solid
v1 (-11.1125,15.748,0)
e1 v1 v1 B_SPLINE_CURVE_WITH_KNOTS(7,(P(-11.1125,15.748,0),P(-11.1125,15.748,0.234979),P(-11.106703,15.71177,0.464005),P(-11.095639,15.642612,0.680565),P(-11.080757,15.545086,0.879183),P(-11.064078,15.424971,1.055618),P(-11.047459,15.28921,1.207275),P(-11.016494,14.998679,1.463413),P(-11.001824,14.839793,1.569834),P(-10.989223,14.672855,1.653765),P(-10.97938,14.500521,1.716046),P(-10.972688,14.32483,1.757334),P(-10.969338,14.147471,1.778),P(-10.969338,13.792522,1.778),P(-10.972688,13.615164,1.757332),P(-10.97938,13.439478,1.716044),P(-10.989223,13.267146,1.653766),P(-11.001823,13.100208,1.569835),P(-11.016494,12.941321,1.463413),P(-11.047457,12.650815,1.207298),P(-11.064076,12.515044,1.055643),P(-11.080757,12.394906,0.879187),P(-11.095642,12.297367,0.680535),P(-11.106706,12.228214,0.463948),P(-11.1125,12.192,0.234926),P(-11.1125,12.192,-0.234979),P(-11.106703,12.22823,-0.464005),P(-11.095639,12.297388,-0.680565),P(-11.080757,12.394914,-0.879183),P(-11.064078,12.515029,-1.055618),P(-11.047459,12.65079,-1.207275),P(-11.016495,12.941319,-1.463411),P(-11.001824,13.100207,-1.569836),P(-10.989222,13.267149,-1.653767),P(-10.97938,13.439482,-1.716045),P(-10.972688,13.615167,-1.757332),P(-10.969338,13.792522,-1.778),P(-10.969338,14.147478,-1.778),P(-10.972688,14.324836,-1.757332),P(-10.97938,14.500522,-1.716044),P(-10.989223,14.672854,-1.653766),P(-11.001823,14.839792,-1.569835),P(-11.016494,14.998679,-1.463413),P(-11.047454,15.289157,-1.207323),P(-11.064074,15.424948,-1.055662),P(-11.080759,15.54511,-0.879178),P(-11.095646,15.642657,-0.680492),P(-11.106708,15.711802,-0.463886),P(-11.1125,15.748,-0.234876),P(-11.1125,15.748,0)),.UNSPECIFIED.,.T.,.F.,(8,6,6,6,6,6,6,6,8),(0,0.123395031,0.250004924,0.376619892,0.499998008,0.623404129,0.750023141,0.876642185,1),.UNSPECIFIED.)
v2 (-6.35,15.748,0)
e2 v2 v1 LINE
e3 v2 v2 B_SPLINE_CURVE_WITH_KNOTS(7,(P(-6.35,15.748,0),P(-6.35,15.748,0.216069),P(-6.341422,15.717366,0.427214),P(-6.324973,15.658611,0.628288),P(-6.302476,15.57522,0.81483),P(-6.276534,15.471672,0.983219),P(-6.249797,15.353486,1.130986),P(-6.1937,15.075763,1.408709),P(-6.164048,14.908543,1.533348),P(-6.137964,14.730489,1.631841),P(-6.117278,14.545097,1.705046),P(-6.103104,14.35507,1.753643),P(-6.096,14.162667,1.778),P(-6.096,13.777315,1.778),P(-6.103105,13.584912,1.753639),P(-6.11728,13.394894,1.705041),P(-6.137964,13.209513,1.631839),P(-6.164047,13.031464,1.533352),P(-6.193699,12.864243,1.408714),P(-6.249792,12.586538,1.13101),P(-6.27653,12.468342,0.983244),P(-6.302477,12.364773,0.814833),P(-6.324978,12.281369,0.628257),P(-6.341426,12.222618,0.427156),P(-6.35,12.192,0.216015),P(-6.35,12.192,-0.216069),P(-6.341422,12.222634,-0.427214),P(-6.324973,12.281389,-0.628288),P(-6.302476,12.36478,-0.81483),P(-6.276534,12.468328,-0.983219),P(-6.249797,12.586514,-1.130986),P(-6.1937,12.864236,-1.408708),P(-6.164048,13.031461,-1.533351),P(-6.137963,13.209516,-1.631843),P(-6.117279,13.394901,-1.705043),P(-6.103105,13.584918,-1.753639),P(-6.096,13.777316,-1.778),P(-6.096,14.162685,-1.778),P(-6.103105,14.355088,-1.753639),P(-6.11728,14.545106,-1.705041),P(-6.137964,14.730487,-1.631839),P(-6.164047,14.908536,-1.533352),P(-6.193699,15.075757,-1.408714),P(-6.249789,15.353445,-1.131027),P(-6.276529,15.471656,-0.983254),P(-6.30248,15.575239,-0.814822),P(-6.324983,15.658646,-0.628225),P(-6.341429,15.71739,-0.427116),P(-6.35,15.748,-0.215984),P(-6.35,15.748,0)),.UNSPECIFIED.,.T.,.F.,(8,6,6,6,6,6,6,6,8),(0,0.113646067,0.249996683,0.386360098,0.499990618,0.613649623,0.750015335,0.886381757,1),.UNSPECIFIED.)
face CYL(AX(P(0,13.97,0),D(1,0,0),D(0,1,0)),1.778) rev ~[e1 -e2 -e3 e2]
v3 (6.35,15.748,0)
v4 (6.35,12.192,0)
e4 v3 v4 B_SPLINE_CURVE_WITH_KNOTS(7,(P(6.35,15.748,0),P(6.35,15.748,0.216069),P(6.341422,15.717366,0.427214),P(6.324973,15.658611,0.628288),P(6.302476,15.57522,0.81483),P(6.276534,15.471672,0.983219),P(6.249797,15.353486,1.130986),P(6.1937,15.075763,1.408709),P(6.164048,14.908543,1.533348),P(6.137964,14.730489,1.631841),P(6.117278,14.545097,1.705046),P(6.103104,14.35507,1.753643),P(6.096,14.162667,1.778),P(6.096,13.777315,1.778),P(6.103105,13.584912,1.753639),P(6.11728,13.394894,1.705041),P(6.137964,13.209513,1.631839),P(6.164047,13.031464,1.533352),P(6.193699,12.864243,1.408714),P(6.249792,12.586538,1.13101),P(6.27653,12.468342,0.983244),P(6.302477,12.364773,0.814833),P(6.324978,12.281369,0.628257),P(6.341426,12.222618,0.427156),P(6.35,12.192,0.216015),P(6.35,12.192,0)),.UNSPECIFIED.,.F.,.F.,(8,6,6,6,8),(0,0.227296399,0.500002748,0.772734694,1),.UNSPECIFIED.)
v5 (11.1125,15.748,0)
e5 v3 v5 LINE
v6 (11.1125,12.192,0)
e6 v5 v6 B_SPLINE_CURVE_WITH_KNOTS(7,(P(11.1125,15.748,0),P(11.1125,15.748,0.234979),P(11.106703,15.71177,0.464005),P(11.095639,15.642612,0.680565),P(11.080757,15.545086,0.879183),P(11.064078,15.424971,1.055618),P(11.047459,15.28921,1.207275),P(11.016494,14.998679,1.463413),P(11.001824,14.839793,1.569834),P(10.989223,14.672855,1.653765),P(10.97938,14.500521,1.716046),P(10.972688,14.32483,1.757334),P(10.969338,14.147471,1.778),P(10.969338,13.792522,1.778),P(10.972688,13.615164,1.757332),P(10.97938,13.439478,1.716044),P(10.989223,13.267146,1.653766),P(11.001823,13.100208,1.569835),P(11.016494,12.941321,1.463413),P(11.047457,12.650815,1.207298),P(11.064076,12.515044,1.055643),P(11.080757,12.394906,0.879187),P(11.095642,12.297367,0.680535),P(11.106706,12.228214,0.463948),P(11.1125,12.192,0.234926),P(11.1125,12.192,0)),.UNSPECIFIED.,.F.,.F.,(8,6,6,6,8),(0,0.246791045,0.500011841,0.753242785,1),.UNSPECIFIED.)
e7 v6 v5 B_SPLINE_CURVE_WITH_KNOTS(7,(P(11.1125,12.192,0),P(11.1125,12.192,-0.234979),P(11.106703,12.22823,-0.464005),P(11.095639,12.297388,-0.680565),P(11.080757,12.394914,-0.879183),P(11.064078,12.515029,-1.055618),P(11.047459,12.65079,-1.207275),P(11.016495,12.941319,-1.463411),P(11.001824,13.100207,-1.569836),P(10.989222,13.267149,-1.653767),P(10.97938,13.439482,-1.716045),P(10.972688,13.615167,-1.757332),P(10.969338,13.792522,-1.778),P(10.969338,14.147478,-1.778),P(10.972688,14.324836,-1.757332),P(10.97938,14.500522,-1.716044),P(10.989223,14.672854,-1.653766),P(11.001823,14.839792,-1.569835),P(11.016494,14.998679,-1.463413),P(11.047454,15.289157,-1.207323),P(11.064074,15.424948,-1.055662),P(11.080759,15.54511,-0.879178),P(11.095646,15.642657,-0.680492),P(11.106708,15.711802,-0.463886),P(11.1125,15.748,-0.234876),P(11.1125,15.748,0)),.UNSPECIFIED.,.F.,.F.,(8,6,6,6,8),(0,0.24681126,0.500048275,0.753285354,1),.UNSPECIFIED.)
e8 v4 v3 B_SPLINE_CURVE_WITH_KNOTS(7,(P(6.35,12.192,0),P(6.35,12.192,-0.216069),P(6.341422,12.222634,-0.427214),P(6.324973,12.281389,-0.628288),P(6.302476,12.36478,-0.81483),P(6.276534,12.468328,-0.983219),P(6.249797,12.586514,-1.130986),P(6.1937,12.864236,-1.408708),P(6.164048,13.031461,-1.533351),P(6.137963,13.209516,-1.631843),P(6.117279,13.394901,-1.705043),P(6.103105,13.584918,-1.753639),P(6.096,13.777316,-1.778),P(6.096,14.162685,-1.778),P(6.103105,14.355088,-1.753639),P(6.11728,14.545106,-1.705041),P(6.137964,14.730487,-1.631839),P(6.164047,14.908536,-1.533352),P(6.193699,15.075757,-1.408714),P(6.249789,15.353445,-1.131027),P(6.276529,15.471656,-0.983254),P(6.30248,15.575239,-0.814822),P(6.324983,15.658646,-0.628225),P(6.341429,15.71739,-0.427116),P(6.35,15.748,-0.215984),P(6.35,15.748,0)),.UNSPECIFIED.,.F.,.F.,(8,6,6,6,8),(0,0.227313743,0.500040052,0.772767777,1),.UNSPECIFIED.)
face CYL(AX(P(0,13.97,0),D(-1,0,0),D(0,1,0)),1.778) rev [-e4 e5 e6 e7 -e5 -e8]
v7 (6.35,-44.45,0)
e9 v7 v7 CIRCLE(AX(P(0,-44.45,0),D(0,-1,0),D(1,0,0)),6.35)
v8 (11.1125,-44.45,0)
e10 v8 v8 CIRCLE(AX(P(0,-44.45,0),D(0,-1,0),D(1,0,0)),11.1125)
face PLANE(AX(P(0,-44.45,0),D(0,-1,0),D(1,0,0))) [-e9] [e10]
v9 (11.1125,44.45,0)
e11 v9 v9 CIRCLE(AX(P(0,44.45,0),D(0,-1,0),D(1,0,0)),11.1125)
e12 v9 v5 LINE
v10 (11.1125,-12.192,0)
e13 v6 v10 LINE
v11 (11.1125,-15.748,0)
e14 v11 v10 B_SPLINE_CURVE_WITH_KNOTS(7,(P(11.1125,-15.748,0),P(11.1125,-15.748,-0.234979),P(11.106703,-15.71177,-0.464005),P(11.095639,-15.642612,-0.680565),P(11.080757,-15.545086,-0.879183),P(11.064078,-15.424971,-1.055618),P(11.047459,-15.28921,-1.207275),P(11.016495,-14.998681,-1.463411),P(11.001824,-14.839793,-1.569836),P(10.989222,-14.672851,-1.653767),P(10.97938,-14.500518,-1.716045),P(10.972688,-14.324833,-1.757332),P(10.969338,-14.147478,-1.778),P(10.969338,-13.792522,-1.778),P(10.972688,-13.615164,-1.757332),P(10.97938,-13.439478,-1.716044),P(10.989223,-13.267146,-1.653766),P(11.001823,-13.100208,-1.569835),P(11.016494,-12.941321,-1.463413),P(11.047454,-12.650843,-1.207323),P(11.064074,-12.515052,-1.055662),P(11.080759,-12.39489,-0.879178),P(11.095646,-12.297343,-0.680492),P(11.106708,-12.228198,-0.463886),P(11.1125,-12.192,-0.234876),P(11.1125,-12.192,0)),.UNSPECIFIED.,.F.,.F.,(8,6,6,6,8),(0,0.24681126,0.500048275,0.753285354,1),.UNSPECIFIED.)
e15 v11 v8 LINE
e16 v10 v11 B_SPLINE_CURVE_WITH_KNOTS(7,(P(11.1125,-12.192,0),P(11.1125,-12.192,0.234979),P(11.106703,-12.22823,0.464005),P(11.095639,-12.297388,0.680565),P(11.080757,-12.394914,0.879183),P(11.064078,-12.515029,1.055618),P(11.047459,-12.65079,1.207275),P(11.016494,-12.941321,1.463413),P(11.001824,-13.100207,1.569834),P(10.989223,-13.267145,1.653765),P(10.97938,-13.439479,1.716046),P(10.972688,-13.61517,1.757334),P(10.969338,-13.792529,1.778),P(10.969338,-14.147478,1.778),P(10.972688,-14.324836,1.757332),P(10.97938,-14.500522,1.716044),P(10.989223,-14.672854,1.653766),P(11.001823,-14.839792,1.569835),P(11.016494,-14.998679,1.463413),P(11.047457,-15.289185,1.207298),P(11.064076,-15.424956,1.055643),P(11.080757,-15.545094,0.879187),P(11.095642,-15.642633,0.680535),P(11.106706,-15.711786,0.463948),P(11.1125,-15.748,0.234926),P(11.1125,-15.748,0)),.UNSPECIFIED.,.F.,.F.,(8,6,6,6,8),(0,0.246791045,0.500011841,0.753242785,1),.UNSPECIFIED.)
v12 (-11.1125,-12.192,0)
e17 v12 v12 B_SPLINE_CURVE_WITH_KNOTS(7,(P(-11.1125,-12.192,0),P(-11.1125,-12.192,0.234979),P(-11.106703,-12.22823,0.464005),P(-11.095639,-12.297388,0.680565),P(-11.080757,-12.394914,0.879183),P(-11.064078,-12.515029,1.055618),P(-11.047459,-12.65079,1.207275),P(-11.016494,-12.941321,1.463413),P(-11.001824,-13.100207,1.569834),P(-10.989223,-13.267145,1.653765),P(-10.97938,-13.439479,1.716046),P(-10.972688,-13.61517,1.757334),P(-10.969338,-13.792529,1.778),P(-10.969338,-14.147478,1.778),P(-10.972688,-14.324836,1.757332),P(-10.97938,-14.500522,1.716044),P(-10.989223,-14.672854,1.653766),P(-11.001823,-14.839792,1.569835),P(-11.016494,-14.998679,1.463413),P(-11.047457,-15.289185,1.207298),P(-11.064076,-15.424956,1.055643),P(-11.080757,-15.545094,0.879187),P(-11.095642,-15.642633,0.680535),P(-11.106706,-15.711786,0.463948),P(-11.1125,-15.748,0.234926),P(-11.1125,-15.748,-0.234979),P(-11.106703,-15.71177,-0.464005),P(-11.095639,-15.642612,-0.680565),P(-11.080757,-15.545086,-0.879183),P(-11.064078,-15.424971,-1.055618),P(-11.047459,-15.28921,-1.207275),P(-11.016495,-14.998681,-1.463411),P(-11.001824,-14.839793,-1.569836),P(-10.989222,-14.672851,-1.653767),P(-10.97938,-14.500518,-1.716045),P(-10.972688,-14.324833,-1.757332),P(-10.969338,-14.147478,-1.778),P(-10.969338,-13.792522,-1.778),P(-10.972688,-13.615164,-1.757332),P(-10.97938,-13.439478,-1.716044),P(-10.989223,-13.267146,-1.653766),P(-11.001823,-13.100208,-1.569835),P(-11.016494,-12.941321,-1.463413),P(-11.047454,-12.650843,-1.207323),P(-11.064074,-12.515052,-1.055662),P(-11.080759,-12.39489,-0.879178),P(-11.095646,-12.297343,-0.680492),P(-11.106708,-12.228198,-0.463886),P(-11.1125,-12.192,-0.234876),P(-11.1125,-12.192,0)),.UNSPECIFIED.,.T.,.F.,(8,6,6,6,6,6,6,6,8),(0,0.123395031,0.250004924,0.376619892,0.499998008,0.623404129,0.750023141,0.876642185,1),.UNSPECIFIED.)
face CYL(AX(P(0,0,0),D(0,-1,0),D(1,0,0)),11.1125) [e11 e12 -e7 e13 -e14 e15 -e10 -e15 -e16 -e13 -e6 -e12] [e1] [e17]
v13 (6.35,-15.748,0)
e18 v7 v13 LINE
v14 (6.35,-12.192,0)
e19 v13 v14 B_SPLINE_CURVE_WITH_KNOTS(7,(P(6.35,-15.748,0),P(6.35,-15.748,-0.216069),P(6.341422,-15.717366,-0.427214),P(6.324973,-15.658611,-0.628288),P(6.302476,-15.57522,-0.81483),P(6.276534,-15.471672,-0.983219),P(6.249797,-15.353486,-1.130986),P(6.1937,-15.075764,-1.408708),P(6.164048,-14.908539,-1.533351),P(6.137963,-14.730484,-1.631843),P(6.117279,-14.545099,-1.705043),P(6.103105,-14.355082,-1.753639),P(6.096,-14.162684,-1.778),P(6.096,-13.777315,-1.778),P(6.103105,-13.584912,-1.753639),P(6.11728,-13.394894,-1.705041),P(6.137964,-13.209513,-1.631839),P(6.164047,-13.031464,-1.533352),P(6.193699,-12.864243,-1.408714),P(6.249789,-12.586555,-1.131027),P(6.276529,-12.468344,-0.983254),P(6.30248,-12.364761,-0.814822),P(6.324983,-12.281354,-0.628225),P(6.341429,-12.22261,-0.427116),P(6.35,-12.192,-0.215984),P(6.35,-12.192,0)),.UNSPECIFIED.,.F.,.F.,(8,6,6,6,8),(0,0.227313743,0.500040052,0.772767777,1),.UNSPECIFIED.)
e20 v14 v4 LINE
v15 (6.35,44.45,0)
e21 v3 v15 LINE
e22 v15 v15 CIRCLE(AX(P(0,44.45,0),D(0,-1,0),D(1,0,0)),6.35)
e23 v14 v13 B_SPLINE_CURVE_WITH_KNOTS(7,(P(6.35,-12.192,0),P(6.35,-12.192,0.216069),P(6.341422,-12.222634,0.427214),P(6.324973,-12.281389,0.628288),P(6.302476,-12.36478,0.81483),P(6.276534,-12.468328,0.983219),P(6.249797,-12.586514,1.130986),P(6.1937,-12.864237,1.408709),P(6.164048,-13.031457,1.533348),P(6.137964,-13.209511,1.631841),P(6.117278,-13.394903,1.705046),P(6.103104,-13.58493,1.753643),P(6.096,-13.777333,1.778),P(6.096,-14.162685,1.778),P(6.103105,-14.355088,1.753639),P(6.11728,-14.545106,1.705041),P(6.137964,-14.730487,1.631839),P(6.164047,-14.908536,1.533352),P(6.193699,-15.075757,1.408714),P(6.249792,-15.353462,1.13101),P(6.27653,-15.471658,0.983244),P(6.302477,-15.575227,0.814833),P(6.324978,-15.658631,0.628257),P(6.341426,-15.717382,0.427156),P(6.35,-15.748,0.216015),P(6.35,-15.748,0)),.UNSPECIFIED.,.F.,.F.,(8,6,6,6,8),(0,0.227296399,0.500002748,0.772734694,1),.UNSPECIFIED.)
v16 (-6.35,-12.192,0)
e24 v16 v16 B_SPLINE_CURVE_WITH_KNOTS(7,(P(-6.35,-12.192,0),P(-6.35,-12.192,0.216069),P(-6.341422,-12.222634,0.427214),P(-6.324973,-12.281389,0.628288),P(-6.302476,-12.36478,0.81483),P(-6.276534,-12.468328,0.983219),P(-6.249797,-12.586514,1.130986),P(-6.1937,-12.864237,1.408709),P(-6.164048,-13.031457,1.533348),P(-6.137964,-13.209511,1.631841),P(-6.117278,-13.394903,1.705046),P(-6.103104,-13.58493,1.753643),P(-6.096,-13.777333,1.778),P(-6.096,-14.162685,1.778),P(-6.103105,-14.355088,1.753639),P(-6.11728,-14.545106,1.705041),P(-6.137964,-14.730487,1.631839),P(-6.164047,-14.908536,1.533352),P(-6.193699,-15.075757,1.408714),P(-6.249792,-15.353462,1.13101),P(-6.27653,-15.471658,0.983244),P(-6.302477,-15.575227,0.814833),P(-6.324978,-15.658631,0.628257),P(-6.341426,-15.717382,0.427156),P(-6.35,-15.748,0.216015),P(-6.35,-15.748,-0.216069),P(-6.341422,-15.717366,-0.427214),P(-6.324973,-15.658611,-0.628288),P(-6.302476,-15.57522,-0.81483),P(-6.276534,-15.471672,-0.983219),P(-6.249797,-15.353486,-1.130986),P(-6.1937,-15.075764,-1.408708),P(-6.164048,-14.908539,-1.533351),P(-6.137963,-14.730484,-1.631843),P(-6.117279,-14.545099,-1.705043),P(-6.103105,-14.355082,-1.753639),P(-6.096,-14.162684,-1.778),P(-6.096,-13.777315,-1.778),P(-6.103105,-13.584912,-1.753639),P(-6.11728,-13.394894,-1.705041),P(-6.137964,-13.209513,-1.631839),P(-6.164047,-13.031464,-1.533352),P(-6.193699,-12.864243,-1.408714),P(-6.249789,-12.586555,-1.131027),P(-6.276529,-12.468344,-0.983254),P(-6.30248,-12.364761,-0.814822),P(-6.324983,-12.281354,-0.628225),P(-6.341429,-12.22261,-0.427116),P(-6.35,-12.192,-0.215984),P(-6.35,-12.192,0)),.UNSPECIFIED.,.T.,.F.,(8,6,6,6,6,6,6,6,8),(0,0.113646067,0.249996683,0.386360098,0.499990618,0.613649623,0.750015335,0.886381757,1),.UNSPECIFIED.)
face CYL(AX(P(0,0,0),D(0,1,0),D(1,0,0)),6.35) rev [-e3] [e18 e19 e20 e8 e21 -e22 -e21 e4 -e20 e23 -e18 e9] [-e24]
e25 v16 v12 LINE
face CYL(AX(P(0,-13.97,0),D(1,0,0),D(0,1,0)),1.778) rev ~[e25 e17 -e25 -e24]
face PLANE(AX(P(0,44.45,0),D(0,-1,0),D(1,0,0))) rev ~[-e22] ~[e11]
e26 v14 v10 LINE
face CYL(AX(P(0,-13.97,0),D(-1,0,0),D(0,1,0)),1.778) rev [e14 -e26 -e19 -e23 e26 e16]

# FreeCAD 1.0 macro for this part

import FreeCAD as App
import Part
import Sketcher

V = App.Vector
Q = App.Units.Quantity

doc = App.newDocument("Part")
body = doc.addObject("PartDesign::Body", "Body")

sketch1 = body.newObject("Sketcher::SketchObject", "Sketch")
sketch1.AttachmentSupport = (doc.getObject("XZ_Plane"), [""])
sketch1.MapMode = "FlatFace"
sketch1.addGeometry([
    Part.Circle(V(0, 0, 0), V(0, 0, 1), 11),
    Part.Circle(V(0, 0, 0), V(0, 0, 1), 6),
], False)
sketch1.addConstraint([
    Sketcher.Constraint("Coincident", 0, 3, -1, 1),
    Sketcher.Constraint("Coincident", 1, 3, -1, 1),
    Sketcher.Constraint("Diameter", 1, Q("0.5 in")),
    Sketcher.Constraint("Diameter", 0, Q("0.875 in")),
])
pad1 = body.newObject("PartDesign::Pad", "Pad")
pad1.Profile = sketch1
pad1.Length = Q("3.5 in")
pad1.Midplane = True

sketch2 = body.newObject("Sketcher::SketchObject", "Sketch001")
sketch2.AttachmentSupport = (doc.getObject("YZ_Plane"), [""])
sketch2.MapMode = "FlatFace"
sketch2.addGeometry([
    Part.Circle(V(14, 0, 0), V(0, 0, 1), 1.8),
    Part.Circle(V(-14, 0, 0), V(0, 0, 1), 1.8),
], False)
sketch2.addConstraint([
    Sketcher.Constraint("Equal", 0, 1),
    Sketcher.Constraint("Symmetric", 0, 3, 1, 3, -1, 1),
    Sketcher.Constraint("PointOnObject", 0, 3, -1),
    Sketcher.Constraint("Diameter", 0, Q("0.14 in")),
    Sketcher.Constraint("DistanceX", 1, 3, 0, 3, Q("1.1 in")),
])
pocket1 = body.newObject("PartDesign::Pocket", "Pocket")
pocket1.Profile = sketch2
pocket1.Type = "ThroughAll"
pocket1.Midplane = True

doc.recompute()
